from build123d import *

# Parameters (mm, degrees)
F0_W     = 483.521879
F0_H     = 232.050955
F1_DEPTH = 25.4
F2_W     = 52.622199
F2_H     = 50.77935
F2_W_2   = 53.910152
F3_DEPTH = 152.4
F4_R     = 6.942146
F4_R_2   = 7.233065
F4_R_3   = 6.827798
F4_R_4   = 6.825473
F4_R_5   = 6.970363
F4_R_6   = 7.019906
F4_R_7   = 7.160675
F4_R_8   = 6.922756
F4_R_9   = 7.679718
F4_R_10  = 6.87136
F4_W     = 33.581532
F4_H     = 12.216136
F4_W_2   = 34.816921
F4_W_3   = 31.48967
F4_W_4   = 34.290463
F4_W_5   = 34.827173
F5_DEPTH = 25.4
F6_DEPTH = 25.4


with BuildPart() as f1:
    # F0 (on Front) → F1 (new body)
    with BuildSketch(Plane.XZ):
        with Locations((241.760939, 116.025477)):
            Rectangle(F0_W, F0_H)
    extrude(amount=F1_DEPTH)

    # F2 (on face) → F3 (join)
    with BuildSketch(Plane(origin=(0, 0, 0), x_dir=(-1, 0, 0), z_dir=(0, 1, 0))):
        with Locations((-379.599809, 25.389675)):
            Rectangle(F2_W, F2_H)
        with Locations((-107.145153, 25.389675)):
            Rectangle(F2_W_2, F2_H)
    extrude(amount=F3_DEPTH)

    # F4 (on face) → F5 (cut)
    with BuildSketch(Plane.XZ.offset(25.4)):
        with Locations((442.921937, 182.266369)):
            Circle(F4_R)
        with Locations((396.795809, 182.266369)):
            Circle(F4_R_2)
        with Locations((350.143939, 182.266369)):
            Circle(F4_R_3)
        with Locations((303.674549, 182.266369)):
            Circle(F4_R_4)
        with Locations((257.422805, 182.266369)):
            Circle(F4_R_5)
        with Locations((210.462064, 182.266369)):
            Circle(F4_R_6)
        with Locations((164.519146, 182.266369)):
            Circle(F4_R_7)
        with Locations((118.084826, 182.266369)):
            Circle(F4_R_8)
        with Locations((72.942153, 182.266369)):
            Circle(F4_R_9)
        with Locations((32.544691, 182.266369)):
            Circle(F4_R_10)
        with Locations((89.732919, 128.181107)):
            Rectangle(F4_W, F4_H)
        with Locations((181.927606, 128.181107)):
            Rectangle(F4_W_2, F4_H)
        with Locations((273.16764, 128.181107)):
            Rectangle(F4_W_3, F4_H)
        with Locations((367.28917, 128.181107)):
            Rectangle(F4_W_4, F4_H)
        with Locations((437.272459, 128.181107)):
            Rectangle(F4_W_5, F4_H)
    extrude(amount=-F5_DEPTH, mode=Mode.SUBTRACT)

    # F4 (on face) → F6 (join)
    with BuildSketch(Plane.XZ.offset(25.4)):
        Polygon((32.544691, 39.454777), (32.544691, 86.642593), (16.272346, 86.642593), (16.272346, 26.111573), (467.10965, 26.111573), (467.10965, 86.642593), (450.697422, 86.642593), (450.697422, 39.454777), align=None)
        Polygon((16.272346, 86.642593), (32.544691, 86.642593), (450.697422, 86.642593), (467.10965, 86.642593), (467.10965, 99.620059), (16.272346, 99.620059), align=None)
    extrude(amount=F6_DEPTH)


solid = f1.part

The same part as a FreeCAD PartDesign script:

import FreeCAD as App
import Part
import Sketcher

V = App.Vector
Q = App.Units.Quantity


def add_polygon(sketch, points):
    """Adds a closed chain of lines whose ends are joined by coincident constraints."""
    first, n = sketch.GeometryCount, len(points)
    for a, b in zip(points, points[1:] + points[:1]):
        sketch.addGeometry(Part.LineSegment(App.Vector(*a, 0), App.Vector(*b, 0)), False)
    for i in range(n):
        sketch.addConstraint(Sketcher.Constraint("Coincident", first + i, 2, first + (i + 1) % n, 1))

doc = App.newDocument("Part")
body = doc.addObject("PartDesign::Body", "Body")

# Sketch on XZ plane
sketch1 = body.newObject("Sketcher::SketchObject", "Sketch")
sketch1.AttachmentSupport = (doc.getObject("XZ_Plane"), [""])
sketch1.MapMode = "FlatFace"
add_polygon(sketch1, [(0, 232), (0, 0), (484, 0), (484, 232)])  # lines 0-3
sketch1.addConstraint(Sketcher.Constraint("Vertical", 0))
sketch1.addConstraint(Sketcher.Constraint("Horizontal", 1))
sketch1.addConstraint(Sketcher.Constraint("Vertical", 2))
sketch1.addConstraint(Sketcher.Constraint("Horizontal", 3))
sketch1.addConstraint(Sketcher.Constraint("Coincident", 0, 2, -1, 1))
sketch1.addConstraint(Sketcher.Constraint("DistanceX", 1, 1, 1, 2, Q("483.521879 mm")))
sketch1.addConstraint(Sketcher.Constraint("DistanceY", 0, 2, 0, 1, Q("232.050955 mm")))
pad1 = body.newObject("PartDesign::Pad", "Pad")
pad1.Profile = sketch1
pad1.Length = Q("1 in")

# Sketch on XZ plane
sketch2 = body.newObject("Sketcher::SketchObject", "Sketch001")
sketch2.AttachmentSupport = (doc.getObject("XZ_Plane"), [""])
sketch2.MapMode = "FlatFace"
add_polygon(sketch2, [(406, 51), (406, 0), (353, 0), (353, 51)])  # lines 0-3
add_polygon(sketch2, [(134, 51), (134, 0), (80, 0), (80, 51)])  # lines 4-7
sketch2.addConstraint(Sketcher.Constraint("Vertical", 0))
sketch2.addConstraint(Sketcher.Constraint("Horizontal", 1))
sketch2.addConstraint(Sketcher.Constraint("Vertical", 2))
sketch2.addConstraint(Sketcher.Constraint("Horizontal", 3))
sketch2.addConstraint(Sketcher.Constraint("Vertical", 4))
sketch2.addConstraint(Sketcher.Constraint("Horizontal", 5))
sketch2.addConstraint(Sketcher.Constraint("Vertical", 6))
sketch2.addConstraint(Sketcher.Constraint("Horizontal", 7))
sketch2.addConstraint(Sketcher.Constraint("PointOnObject", 0, 2, -1))
sketch2.addConstraint(Sketcher.Constraint("PointOnObject", 4, 2, -1))
sketch2.addConstraint(Sketcher.Constraint("Horizontal", 3, 2, 6, 2))
sketch2.addConstraint(Sketcher.Constraint("DistanceX", 1, 2, 1, 1, Q("52.622199 mm")))
sketch2.addConstraint(Sketcher.Constraint("DistanceY", 0, 2, 0, 1, Q("50.77935 mm")))
sketch2.addConstraint(Sketcher.Constraint("DistanceX", 5, 2, 5, 1, Q("53.910152 mm")))
sketch2.addConstraint(Sketcher.Constraint("DistanceX", -1, 1, 0, 2, Q("405.910909 mm")))
sketch2.addConstraint(Sketcher.Constraint("DistanceX", -1, 1, 4, 2, Q("134.100229 mm")))
pad2 = body.newObject("PartDesign::Pad", "Pad001")
pad2.Profile = sketch2
pad2.Length = Q("6 in")
pad2.Reversed = True

# Sketch on XZ plane
sketch3 = body.newObject("Sketcher::SketchObject", "Sketch002")
sketch3.AttachmentSupport = (doc.getObject("XZ_Plane"), [""])
sketch3.MapMode = "FlatFace"
sketch3.AttachmentOffset = App.Placement(V(0, 0, 1 * 25.4), App.Rotation())
sketch3.addGeometry(Part.Circle(V(443, 182, 0), V(0, 0, 1), 7), False)  # 0
sketch3.addGeometry(Part.Circle(V(397, 182, 0), V(0, 0, 1), 7), False)  # 1
sketch3.addGeometry(Part.Circle(V(350, 182, 0), V(0, 0, 1), 7), False)  # 2
sketch3.addGeometry(Part.Circle(V(304, 182, 0), V(0, 0, 1), 7), False)  # 3
sketch3.addGeometry(Part.Circle(V(257, 182, 0), V(0, 0, 1), 7), False)  # 4
sketch3.addGeometry(Part.Circle(V(210, 182, 0), V(0, 0, 1), 7), False)  # 5
sketch3.addGeometry(Part.Circle(V(165, 182, 0), V(0, 0, 1), 7), False)  # 6
sketch3.addGeometry(Part.Circle(V(118, 182, 0), V(0, 0, 1), 7), False)  # 7
sketch3.addGeometry(Part.Circle(V(73, 182, 0), V(0, 0, 1), 8), False)  # 8
sketch3.addGeometry(Part.Circle(V(33, 182, 0), V(0, 0, 1), 7), False)  # 9
add_polygon(sketch3, [(73, 134), (73, 122), (107, 122), (107, 134)])  # lines 10-13
add_polygon(sketch3, [(165, 134), (165, 122), (199, 122), (199, 134)])  # lines 14-17
add_polygon(sketch3, [(257, 134), (257, 122), (289, 122), (289, 134)])  # lines 18-21
add_polygon(sketch3, [(350, 134), (350, 122), (384, 122), (384, 134)])  # lines 22-25
add_polygon(sketch3, [(420, 134), (420, 122), (455, 122), (455, 134)])  # lines 26-29
sketch3.addConstraint(Sketcher.Constraint("Vertical", 10))
sketch3.addConstraint(Sketcher.Constraint("Horizontal", 11))
sketch3.addConstraint(Sketcher.Constraint("Vertical", 12))
sketch3.addConstraint(Sketcher.Constraint("Horizontal", 13))
sketch3.addConstraint(Sketcher.Constraint("Vertical", 14))
sketch3.addConstraint(Sketcher.Constraint("Horizontal", 15))
sketch3.addConstraint(Sketcher.Constraint("Vertical", 16))
sketch3.addConstraint(Sketcher.Constraint("Horizontal", 17))
sketch3.addConstraint(Sketcher.Constraint("Vertical", 18))
sketch3.addConstraint(Sketcher.Constraint("Horizontal", 19))
sketch3.addConstraint(Sketcher.Constraint("Vertical", 20))
sketch3.addConstraint(Sketcher.Constraint("Horizontal", 21))
sketch3.addConstraint(Sketcher.Constraint("Vertical", 22))
sketch3.addConstraint(Sketcher.Constraint("Horizontal", 23))
sketch3.addConstraint(Sketcher.Constraint("Vertical", 24))
sketch3.addConstraint(Sketcher.Constraint("Horizontal", 25))
sketch3.addConstraint(Sketcher.Constraint("Vertical", 26))
sketch3.addConstraint(Sketcher.Constraint("Horizontal", 27))
sketch3.addConstraint(Sketcher.Constraint("Vertical", 28))
sketch3.addConstraint(Sketcher.Constraint("Horizontal", 29))
sketch3.addConstraint(Sketcher.Constraint("Horizontal", 0, 3, 1, 3))
sketch3.addConstraint(Sketcher.Constraint("Horizontal", 1, 3, 2, 3))
sketch3.addConstraint(Sketcher.Constraint("Horizontal", 2, 3, 3, 3))
sketch3.addConstraint(Sketcher.Constraint("Horizontal", 3, 3, 4, 3))
sketch3.addConstraint(Sketcher.Constraint("Horizontal", 4, 3, 5, 3))
sketch3.addConstraint(Sketcher.Constraint("Horizontal", 5, 3, 6, 3))
sketch3.addConstraint(Sketcher.Constraint("Horizontal", 6, 3, 7, 3))
sketch3.addConstraint(Sketcher.Constraint("Horizontal", 7, 3, 8, 3))
sketch3.addConstraint(Sketcher.Constraint("Horizontal", 8, 3, 9, 3))
sketch3.addConstraint(Sketcher.Constraint("Horizontal", 11, 2, 14, 2))
sketch3.addConstraint(Sketcher.Constraint("Horizontal", 13, 2, 16, 2))
sketch3.addConstraint(Sketcher.Constraint("Horizontal", 15, 2, 18, 2))
sketch3.addConstraint(Sketcher.Constraint("Horizontal", 17, 2, 20, 2))
sketch3.addConstraint(Sketcher.Constraint("Horizontal", 19, 2, 22, 2))
sketch3.addConstraint(Sketcher.Constraint("Horizontal", 21, 2, 24, 2))
sketch3.addConstraint(Sketcher.Constraint("Horizontal", 23, 2, 26, 2))
sketch3.addConstraint(Sketcher.Constraint("Horizontal", 25, 2, 28, 2))
sketch3.addConstraint(Sketcher.Constraint("Vertical", 8, 3, 10, 2))
sketch3.addConstraint(Sketcher.Constraint("Vertical", 6, 3, 14, 2))
sketch3.addConstraint(Sketcher.Constraint("Vertical", 4, 3, 18, 2))
sketch3.addConstraint(Sketcher.Constraint("Vertical", 2, 3, 22, 2))
sketch3.addConstraint(Sketcher.Constraint("Diameter", 1, Q("14.46613 mm")))
sketch3.addConstraint(Sketcher.Constraint("Diameter", 6, Q("14.32135 mm")))
sketch3.addConstraint(Sketcher.Constraint("Diameter", 7, Q("13.845512 mm")))
sketch3.addConstraint(Sketcher.Constraint("Diameter", 9, Q("13.74272 mm")))
sketch3.addConstraint(Sketcher.Constraint("Diameter", 0, Q("13.884292 mm")))
sketch3.addConstraint(Sketcher.Constraint("Diameter", 2, Q("13.655596 mm")))
sketch3.addConstraint(Sketcher.Constraint("Diameter", 3, Q("13.650946 mm")))
sketch3.addConstraint(Sketcher.Constraint("Diameter", 4, Q("13.940726 mm")))
sketch3.addConstraint(Sketcher.Constraint("Diameter", 5, Q("14.039812 mm")))
sketch3.addConstraint(Sketcher.Constraint("Diameter", 8, Q("15.359436 mm")))
sketch3.addConstraint(Sketcher.Constraint("DistanceX", 11, 1, 11, 2, Q("33.581532 mm")))
sketch3.addConstraint(Sketcher.Constraint("DistanceX", 15, 1, 15, 2, Q("34.816921 mm")))
sketch3.addConstraint(Sketcher.Constraint("DistanceX", 19, 1, 19, 2, Q("31.48967 mm")))
sketch3.addConstraint(Sketcher.Constraint("DistanceX", -1, 1, 23, 2, Q("384.434401 mm")))
sketch3.addConstraint(Sketcher.Constraint("DistanceX", 2, 3, 0, 3, Q("92.777998 mm")))
sketch3.addConstraint(Sketcher.Constraint("DistanceX", 23, 1, 23, 2, Q("34.290463 mm")))
sketch3.addConstraint(Sketcher.Constraint("DistanceX", 27, 1, 27, 2, Q("34.827173 mm")))
sketch3.addConstraint(Sketcher.Constraint("DistanceY", 10, 2, 10, 1, Q("12.216136 mm")))
sketch3.addConstraint(Sketcher.Constraint("DistanceY", -1, 1, 0, 3, Q("182.266369 mm")))
sketch3.addConstraint(Sketcher.Constraint("DistanceX", -1, 1, 1, 3, Q("396.795809 mm")))
sketch3.addConstraint(Sketcher.Constraint("DistanceX", -1, 1, 3, 3, Q("303.674549 mm")))
sketch3.addConstraint(Sketcher.Constraint("DistanceX", -1, 1, 9, 3, Q("32.544691 mm")))
sketch3.addConstraint(Sketcher.Constraint("DistanceY", -1, 1, 10, 2, Q("122.073039 mm")))
sketch3.addConstraint(Sketcher.Constraint("DistanceX", 5, 3, 4, 3, Q("46.960741 mm")))
sketch3.addConstraint(Sketcher.Constraint("DistanceX", 6, 3, 4, 3, Q("92.903659 mm")))
sketch3.addConstraint(Sketcher.Constraint("DistanceX", 7, 3, 6, 3, Q("46.43432 mm")))
sketch3.addConstraint(Sketcher.Constraint("DistanceX", 8, 3, 5, 3, Q("137.519911 mm")))
sketch3.addConstraint(Sketcher.Constraint("DistanceX", 23, 2, 26, 2, Q("35.424471 mm")))
sketch3.addConstraint(Sketcher.Constraint("DistanceX", -1, 1, 4, 3, Q("257.422805 mm")))
pocket1 = body.newObject("PartDesign::Pocket", "Pocket")
pocket1.Profile = sketch3
pocket1.Length = Q("1 in")

# Sketch on XZ plane
sketch4 = body.newObject("Sketcher::SketchObject", "Sketch003")
sketch4.AttachmentSupport = (doc.getObject("XZ_Plane"), [""])
sketch4.MapMode = "FlatFace"
sketch4.AttachmentOffset = App.Placement(V(0, 0, 1 * 25.4), App.Rotation())
add_polygon(sketch4, [(16, 26), (467, 26), (467, 100), (16, 100)])  # lines 0-3
add_polygon(sketch4, [(33, 39), (33, 87), (451, 87), (451, 39)])  # lines 4-7
sketch4.addConstraint(Sketcher.Constraint("Horizontal", 0))
sketch4.addConstraint(Sketcher.Constraint("Vertical", 1))
sketch4.addConstraint(Sketcher.Constraint("Horizontal", 2))
sketch4.addConstraint(Sketcher.Constraint("Vertical", 3))
sketch4.addConstraint(Sketcher.Constraint("Vertical", 4))
sketch4.addConstraint(Sketcher.Constraint("Horizontal", 5))
sketch4.addConstraint(Sketcher.Constraint("Vertical", 6))
sketch4.addConstraint(Sketcher.Constraint("Horizontal", 7))
sketch4.addConstraint(Sketcher.Constraint("DistanceX", 0, 1, 0, 2, Q("17.7495002 in")))
sketch4.addConstraint(Sketcher.Constraint("DistanceX", 5, 1, 5, 2, Q("418.152731 mm")))
sketch4.addConstraint(Sketcher.Constraint("DistanceY", 1, 1, 1, 2, Q("73.508486 mm")))
sketch4.addConstraint(Sketcher.Constraint("DistanceY", 4, 1, 4, 2, Q("47.187816 mm")))
sketch4.addConstraint(Sketcher.Constraint("DistanceX", -1, 1, 0, 2, Q("467.10965 mm")))
sketch4.addConstraint(Sketcher.Constraint("DistanceY", -1, 1, 1, 2, Q("99.620059 mm")))
sketch4.addConstraint(Sketcher.Constraint("DistanceX", -1, 1, 4, 2, Q("32.544691 mm")))
sketch4.addConstraint(Sketcher.Constraint("DistanceY", 3, 2, 4, 2, Q("60.53102 mm")))
pad3 = body.newObject("PartDesign::Pad", "Pad002")
pad3.Profile = sketch4
pad3.Length = Q("1 in")

doc.recompute()
